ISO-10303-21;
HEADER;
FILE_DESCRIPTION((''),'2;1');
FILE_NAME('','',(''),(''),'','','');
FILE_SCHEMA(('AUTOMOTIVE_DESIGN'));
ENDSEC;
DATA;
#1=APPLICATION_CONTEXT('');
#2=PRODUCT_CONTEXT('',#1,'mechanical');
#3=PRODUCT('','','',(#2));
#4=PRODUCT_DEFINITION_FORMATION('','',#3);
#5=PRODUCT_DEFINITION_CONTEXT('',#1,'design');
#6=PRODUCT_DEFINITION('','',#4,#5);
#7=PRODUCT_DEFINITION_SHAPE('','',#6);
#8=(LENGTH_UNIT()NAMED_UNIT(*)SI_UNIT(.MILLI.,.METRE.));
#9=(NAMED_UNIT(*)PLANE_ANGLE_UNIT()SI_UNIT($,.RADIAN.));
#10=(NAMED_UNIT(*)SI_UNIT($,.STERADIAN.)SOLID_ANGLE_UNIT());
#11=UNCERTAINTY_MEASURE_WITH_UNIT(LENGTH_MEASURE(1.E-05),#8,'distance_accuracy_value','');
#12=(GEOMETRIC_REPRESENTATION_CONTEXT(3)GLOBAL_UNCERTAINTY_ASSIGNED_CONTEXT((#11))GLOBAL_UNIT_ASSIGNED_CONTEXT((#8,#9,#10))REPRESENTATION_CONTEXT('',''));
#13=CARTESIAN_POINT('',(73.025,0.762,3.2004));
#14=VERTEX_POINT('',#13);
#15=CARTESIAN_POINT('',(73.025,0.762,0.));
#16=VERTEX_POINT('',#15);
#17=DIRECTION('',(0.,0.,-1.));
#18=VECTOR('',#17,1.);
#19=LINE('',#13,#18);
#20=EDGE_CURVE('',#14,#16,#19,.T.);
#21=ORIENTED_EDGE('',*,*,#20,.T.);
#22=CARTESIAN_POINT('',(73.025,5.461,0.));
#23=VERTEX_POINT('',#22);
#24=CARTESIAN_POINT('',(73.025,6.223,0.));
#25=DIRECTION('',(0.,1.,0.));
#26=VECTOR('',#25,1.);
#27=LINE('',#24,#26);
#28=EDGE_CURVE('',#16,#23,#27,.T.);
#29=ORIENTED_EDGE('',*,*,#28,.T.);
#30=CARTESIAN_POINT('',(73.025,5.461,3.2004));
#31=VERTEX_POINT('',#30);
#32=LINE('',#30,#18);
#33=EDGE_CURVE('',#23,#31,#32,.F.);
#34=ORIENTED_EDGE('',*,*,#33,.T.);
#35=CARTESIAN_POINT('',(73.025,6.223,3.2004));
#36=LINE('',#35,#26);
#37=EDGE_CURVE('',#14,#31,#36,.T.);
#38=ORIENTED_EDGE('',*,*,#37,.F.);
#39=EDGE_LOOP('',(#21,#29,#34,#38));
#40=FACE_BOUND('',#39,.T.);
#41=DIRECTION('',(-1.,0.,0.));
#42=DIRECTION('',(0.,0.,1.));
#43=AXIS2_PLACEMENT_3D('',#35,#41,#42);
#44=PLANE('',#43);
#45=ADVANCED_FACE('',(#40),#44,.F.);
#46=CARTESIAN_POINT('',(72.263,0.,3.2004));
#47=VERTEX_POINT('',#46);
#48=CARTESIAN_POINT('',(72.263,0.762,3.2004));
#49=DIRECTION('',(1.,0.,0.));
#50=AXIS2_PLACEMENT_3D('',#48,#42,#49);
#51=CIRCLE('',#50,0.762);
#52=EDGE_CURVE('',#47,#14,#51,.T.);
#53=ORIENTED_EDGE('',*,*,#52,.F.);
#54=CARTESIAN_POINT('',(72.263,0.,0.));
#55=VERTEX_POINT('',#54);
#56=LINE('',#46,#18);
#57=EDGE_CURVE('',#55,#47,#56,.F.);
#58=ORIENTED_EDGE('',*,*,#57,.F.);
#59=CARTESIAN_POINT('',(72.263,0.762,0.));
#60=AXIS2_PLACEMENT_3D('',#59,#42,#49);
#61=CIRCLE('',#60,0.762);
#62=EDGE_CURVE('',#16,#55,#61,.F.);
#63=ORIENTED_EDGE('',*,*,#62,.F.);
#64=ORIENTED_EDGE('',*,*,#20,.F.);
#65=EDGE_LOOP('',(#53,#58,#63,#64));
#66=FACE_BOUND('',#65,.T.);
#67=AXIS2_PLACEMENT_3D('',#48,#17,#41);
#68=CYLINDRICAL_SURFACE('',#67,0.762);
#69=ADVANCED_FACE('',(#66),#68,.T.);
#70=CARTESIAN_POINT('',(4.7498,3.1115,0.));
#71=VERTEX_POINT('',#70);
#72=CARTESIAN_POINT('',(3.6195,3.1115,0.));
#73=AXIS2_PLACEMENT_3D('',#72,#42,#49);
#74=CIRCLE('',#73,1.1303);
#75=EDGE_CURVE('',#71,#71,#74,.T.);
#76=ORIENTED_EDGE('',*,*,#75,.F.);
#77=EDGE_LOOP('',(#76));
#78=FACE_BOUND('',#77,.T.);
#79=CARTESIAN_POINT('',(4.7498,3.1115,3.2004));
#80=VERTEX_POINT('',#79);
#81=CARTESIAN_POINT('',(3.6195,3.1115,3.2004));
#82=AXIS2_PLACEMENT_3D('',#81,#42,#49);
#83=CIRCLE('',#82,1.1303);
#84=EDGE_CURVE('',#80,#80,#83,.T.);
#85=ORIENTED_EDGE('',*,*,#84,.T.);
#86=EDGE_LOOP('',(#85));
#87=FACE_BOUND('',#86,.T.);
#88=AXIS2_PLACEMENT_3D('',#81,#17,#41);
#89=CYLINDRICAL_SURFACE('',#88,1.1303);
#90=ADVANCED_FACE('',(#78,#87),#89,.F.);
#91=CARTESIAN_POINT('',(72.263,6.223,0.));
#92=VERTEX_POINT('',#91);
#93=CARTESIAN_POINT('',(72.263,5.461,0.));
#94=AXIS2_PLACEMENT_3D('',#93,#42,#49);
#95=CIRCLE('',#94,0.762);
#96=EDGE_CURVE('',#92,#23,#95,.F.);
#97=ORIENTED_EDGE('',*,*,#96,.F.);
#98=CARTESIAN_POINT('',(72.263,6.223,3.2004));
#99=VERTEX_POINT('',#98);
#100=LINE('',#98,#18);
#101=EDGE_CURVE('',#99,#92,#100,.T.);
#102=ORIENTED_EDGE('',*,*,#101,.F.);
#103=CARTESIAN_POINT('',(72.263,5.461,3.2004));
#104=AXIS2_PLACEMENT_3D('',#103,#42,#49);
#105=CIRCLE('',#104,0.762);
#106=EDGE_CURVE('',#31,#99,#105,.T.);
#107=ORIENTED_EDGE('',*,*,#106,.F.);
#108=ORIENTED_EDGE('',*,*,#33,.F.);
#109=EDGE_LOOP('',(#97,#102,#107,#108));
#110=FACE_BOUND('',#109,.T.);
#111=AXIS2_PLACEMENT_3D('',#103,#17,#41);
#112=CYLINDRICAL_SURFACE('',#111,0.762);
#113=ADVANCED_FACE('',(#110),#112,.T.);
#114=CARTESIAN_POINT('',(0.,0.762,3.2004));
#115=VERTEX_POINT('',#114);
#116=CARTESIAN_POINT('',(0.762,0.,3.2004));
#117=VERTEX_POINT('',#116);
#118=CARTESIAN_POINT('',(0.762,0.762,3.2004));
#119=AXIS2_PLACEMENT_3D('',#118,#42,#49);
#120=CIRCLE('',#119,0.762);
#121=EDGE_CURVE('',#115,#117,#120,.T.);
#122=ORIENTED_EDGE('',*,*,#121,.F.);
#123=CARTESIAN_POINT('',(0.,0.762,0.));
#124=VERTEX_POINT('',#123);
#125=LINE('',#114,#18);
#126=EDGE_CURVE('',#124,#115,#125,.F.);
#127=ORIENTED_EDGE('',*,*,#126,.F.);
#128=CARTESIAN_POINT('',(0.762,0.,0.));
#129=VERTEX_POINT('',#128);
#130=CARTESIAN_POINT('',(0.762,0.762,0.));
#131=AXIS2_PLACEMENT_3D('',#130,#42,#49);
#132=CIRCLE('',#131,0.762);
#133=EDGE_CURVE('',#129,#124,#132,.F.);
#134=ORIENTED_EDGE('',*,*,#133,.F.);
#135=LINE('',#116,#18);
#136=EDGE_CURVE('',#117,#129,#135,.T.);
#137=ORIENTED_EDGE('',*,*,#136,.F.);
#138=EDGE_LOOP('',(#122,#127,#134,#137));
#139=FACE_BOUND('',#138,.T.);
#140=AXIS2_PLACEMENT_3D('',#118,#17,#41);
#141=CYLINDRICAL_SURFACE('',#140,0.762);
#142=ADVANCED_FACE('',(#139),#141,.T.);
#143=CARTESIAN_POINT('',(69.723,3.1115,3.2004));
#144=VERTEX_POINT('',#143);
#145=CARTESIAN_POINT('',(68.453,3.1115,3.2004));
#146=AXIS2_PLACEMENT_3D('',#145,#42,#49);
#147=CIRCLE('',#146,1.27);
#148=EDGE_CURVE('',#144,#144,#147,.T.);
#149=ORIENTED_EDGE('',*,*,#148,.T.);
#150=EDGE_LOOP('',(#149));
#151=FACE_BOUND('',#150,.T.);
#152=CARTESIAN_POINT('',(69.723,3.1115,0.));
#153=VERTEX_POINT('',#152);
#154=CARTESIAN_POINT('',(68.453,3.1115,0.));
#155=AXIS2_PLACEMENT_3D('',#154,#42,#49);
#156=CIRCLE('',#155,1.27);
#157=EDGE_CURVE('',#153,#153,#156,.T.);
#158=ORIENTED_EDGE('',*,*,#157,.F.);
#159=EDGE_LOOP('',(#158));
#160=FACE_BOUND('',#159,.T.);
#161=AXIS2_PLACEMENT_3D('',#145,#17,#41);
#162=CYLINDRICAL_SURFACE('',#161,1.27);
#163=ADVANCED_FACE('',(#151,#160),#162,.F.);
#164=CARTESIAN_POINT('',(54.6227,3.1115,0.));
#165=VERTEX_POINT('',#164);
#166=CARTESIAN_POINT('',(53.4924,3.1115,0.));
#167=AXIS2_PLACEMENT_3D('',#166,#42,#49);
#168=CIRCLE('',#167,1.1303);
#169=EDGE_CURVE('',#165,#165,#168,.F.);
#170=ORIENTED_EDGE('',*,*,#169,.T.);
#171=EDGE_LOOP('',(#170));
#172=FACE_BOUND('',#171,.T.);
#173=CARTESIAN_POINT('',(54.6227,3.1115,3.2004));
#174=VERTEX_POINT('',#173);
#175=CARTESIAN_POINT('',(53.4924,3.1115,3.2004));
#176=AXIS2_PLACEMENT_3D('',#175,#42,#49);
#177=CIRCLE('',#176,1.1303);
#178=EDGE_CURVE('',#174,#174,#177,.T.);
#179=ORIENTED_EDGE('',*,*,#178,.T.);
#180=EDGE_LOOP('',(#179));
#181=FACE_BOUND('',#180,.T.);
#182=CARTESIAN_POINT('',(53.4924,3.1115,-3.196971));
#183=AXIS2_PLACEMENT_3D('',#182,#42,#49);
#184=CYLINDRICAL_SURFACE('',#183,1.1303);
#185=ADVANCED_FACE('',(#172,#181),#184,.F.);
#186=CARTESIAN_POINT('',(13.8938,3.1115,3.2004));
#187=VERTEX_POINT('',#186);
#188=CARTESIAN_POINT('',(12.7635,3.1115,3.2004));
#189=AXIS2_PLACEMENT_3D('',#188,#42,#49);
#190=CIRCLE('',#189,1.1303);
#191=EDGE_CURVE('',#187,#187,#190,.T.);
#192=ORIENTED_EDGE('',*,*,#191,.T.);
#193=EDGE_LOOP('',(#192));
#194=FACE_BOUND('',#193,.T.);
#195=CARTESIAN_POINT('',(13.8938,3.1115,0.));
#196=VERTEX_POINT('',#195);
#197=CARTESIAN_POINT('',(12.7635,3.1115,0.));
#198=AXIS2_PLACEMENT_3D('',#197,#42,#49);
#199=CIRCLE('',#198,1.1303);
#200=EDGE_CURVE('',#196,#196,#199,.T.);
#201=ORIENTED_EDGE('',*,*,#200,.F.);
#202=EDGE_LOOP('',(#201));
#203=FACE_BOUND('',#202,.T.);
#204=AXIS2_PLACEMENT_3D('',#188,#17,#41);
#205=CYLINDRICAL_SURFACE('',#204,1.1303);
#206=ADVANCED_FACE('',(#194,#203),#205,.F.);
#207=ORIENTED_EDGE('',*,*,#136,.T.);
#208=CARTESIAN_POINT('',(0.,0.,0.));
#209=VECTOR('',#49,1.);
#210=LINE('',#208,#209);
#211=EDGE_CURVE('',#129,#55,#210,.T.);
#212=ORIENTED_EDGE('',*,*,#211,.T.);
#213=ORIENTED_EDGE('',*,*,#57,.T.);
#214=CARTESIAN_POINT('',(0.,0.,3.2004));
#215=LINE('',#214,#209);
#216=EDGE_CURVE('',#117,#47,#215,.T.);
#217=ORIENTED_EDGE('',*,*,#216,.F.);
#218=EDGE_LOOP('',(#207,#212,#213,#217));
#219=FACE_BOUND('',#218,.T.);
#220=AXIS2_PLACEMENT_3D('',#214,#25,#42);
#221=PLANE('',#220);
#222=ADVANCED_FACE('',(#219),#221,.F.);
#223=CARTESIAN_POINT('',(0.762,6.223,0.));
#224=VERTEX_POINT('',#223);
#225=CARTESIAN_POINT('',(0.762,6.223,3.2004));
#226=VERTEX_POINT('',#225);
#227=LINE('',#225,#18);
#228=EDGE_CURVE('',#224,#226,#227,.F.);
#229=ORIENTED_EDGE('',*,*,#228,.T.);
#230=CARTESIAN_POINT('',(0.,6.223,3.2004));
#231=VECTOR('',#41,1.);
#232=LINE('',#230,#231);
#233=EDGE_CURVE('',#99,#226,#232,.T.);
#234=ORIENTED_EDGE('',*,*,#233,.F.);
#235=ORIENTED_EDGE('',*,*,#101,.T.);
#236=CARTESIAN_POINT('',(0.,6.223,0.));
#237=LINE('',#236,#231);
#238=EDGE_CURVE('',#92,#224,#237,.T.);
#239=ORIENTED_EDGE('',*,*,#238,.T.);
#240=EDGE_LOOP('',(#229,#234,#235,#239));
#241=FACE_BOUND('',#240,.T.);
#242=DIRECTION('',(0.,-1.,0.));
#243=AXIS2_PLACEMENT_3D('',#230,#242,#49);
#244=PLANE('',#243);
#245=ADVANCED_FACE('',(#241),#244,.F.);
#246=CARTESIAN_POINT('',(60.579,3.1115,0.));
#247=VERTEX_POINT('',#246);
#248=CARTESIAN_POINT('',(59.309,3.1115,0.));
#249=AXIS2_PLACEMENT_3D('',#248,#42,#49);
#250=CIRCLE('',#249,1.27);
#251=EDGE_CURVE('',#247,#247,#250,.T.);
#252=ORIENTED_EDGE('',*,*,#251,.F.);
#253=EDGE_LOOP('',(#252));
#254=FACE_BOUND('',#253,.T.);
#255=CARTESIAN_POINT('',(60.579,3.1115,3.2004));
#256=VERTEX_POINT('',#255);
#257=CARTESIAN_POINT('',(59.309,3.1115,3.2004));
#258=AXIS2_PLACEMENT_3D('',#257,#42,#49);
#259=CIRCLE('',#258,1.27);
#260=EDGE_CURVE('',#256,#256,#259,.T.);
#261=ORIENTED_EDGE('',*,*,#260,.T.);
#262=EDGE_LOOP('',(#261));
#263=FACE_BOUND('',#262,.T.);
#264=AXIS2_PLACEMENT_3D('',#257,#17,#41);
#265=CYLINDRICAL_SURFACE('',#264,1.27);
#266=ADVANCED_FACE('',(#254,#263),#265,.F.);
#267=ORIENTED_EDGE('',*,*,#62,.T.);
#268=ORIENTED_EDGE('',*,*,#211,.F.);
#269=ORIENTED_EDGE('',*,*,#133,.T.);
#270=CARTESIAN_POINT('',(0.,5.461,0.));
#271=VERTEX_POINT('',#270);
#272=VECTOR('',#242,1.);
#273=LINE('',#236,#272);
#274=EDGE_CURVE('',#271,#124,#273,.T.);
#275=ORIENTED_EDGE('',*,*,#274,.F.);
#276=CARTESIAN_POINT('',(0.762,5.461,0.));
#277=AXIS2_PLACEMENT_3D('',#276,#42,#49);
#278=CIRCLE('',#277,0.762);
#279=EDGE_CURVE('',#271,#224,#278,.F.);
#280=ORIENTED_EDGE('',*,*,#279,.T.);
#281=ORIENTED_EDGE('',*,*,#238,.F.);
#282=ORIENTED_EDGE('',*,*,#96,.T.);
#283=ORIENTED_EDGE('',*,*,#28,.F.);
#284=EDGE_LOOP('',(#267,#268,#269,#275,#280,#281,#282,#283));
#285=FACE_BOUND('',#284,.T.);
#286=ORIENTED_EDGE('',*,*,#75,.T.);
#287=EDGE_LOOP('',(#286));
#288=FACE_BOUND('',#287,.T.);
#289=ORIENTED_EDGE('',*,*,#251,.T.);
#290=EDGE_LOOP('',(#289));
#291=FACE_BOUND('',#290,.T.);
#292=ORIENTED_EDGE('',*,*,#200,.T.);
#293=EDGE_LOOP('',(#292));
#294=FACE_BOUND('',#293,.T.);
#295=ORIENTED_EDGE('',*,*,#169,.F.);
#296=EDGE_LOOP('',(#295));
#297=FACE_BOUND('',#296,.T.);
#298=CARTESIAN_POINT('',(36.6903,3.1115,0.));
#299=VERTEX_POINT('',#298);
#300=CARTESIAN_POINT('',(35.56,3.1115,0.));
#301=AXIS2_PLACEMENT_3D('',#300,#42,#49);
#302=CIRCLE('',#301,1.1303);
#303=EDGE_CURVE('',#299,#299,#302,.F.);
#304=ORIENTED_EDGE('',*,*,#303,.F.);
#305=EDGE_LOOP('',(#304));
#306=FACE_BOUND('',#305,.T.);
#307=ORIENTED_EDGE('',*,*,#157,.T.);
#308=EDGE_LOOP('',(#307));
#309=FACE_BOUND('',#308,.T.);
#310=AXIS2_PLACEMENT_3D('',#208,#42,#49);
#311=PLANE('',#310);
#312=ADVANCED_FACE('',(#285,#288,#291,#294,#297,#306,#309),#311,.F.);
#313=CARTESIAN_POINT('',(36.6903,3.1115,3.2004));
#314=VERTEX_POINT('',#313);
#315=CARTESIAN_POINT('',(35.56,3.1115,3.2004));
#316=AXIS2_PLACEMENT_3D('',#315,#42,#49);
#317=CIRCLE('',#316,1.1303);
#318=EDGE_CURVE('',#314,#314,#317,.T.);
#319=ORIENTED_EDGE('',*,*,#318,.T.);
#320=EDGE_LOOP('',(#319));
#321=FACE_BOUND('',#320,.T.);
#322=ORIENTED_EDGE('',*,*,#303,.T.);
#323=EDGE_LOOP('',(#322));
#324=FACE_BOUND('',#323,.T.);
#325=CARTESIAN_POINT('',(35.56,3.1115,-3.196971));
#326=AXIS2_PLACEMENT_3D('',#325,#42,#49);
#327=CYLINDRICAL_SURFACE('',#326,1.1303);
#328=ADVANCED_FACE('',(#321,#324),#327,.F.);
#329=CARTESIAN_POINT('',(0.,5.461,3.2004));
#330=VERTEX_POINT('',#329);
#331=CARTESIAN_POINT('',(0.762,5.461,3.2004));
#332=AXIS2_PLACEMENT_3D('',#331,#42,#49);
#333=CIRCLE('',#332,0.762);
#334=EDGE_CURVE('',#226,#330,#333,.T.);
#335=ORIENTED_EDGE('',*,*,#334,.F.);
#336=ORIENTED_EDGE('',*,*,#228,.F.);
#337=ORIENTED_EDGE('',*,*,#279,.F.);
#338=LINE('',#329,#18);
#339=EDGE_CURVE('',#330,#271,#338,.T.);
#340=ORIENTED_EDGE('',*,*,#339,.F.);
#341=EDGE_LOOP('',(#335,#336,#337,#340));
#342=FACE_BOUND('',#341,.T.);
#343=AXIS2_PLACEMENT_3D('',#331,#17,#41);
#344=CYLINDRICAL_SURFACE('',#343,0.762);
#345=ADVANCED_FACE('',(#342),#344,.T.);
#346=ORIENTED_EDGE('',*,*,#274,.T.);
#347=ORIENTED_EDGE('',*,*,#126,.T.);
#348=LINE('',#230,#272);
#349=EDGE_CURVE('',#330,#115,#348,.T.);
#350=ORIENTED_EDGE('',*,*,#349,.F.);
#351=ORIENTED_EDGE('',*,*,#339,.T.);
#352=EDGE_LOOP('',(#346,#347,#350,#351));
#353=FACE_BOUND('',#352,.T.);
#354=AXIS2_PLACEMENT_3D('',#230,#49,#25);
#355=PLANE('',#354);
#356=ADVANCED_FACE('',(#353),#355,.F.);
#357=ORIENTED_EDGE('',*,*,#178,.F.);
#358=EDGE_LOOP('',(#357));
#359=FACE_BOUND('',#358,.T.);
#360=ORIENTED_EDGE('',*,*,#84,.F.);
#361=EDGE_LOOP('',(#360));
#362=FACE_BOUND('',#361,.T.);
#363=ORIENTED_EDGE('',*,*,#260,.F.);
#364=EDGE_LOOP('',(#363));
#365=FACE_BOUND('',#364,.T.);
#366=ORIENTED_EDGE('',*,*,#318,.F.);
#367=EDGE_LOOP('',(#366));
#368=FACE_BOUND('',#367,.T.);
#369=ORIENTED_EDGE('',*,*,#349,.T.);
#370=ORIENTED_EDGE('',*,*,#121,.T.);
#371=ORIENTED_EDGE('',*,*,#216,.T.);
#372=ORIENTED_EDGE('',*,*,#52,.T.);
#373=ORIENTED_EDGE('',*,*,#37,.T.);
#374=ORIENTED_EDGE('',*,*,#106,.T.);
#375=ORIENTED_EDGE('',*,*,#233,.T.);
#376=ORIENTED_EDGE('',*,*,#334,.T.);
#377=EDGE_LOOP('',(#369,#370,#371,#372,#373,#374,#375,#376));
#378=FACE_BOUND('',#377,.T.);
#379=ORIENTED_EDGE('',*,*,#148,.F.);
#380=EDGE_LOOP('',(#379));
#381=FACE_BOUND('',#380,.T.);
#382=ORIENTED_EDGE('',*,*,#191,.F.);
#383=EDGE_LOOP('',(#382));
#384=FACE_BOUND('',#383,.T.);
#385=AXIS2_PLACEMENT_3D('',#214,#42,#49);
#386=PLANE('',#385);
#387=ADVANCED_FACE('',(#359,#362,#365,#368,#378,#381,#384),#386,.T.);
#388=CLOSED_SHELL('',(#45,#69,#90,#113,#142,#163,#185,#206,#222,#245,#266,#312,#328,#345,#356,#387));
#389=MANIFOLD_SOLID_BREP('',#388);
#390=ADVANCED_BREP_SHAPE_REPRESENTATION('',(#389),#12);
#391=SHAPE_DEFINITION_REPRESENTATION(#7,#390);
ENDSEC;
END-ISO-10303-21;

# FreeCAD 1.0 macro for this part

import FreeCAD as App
import Part
import Sketcher
Q = App.Units.Quantity


def edges_at(feature, points):
    """Names of the edges that pass closest to the given points."""
    edges = feature.Shape.Edges
    near = lambda p: min(range(len(edges)), key=lambda i: edges[i].distToShape(Part.Vertex(*p))[0])
    return sorted({f"Edge{near(p) + 1}" for p in points})

doc = App.newDocument("Part")
body = doc.addObject("PartDesign::Body", "Body")

# Sketch on XY plane
sketch1 = body.newObject("Sketcher::SketchObject", "Sketch")
sketch1.AttachmentSupport = (doc.getObject("XY_Plane"), [""])
sketch1.MapMode = "FlatFace"
sketch1.addGeometry([
    Part.LineSegment(App.Vector(0, 6.223, 0), App.Vector(0, 0, 0)),  # 0
    Part.LineSegment(App.Vector(0, 0, 0), App.Vector(73.025, 0, 0)),  # 1
    Part.LineSegment(App.Vector(73.025, 0, 0), App.Vector(73.025, 6.223, 0)),  # 2
    Part.LineSegment(App.Vector(73.025, 6.223, 0), App.Vector(0, 6.223, 0)),  # 3
    Part.Circle(App.Vector(3.6195, 3.1115, 0), App.Vector(0, 0, 1), 1.1303),  # 4
    Part.Circle(App.Vector(12.7635, 3.1115, 0), App.Vector(0, 0, 1), 1.1303),  # 5
    Part.Circle(App.Vector(59.309, 3.1115, 0), App.Vector(0, 0, 1), 1.27),  # 6
    Part.Circle(App.Vector(68.453, 3.1115, 0), App.Vector(0, 0, 1), 1.27),  # 7
], False)
sketch1.addConstraint([
    Sketcher.Constraint("Coincident", 0, 2, 1, 1),
    Sketcher.Constraint("Coincident", 1, 2, 2, 1),
    Sketcher.Constraint("Coincident", 2, 2, 3, 1),
    Sketcher.Constraint("Coincident", 3, 2, 0, 1),
    Sketcher.Constraint("Vertical", 0),
    Sketcher.Constraint("Horizontal", 1),
    Sketcher.Constraint("Vertical", 2),
    Sketcher.Constraint("Horizontal", 3),
    Sketcher.Constraint("Coincident", 0, 2, -1, 1),
    Sketcher.Constraint("Equal", 4, 5),
    Sketcher.Constraint("Equal", 6, 7),
    Sketcher.Constraint("Horizontal", 4, 3, 5, 3),
    Sketcher.Constraint("Horizontal", 5, 3, 6, 3),
    Sketcher.Constraint("Horizontal", 6, 3, 7, 3),
    Sketcher.Constraint("Diameter", 6, Q("0.1 in")),
    Sketcher.Constraint("Diameter", 4, Q("0.089 in")),
    Sketcher.Constraint("DistanceX", 1, 1, 1, 2, Q("2.875 in")),
    Sketcher.Constraint("DistanceY", 0, 2, 0, 1, Q("0.245 in")),
    Sketcher.Constraint("DistanceX", 4, 3, 5, 3, Q("0.36 in")),
    Sketcher.Constraint("DistanceX", 6, 3, 7, 3, Q("0.36 in")),
    Sketcher.Constraint("DistanceX", 7, 3, 1, 2, Q("0.18 in")),
    Sketcher.Constraint("DistanceX", -1, 1, 4, 3, Q("0.1425 in")),
    Sketcher.Constraint("DistanceY", -1, 1, 4, 3, Q("0.1225 in")),
])
pad1 = body.newObject("PartDesign::Pad", "Pad")
pad1.Profile = sketch1
pad1.Length = Q("0.126 in")

# Sketch on XY plane
sketch2 = body.newObject("Sketcher::SketchObject", "Sketch001")
sketch2.AttachmentSupport = (doc.getObject("XY_Plane"), [""])
sketch2.MapMode = "FlatFace"
sketch2.AttachmentOffset = App.Placement(App.Vector(0, 0, 0.126 * 25.4), App.Rotation())
sketch2.addGeometry([
    Part.Circle(App.Vector(35.56, 3.1115, 0), App.Vector(0, 0, 1), 1.1303),
    Part.Circle(App.Vector(53.4924, 3.1115, 0), App.Vector(0, 0, 1), 1.1303),
], False)
sketch2.addConstraint([
    Sketcher.Constraint("Equal", 0, 1),
    Sketcher.Constraint("Horizontal", 0, 3, 1, 3),
    Sketcher.Constraint("Diameter", 0, Q("0.089 in")),
    Sketcher.Constraint("DistanceX", -1, 1, 0, 3, Q("1.4 in")),
    Sketcher.Constraint("DistanceX", -1, 1, 1, 3, Q("2.106 in")),
    Sketcher.Constraint("DistanceY", -1, 1, 0, 3, Q("0.1225 in")),
])
pocket1 = body.newObject("PartDesign::Pocket", "Pocket")
pocket1.Profile = sketch2
pocket1.Length = Q("0.126 in")
doc.recompute()

fillet = body.newObject("PartDesign::Fillet", "Fillet")
fillet.Base = (pocket1, edges_at(pocket1, [
    (0, 6.223, 1.6),
    (73.025, 6.223, 1.6),
    (73.025, 0, 1.6),
    (0, 0, 1.6),
]))
fillet.Radius = Q("0.03 in")

doc.recompute()
